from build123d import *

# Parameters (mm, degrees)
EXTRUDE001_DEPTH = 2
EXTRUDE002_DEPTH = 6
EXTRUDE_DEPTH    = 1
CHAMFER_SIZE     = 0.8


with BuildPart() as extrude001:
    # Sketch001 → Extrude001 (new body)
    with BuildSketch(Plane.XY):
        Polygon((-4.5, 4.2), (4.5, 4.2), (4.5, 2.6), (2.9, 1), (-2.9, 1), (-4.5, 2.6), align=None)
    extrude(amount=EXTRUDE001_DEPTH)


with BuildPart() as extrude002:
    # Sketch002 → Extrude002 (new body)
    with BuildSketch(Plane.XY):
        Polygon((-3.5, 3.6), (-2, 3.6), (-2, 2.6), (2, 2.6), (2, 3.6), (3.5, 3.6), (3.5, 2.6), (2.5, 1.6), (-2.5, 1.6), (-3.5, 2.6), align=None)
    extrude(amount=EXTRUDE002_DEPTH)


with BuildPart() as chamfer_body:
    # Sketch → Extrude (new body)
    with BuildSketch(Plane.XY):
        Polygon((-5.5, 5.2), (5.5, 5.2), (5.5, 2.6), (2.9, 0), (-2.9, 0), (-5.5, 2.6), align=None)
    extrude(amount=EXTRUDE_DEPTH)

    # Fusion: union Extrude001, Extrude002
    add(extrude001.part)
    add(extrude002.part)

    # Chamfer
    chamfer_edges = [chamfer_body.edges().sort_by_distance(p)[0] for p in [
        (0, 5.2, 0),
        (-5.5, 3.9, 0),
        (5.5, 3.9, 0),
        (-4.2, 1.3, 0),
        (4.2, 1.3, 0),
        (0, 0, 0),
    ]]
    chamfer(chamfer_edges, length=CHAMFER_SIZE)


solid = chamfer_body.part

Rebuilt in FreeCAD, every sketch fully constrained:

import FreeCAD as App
import Part
import Sketcher

V = App.Vector
Q = App.Units.Quantity


def edges_at(feature, points):
    """Names of the edges that pass closest to the given points."""
    edges = feature.Shape.Edges
    near = lambda p: min(range(len(edges)), key=lambda i: edges[i].distToShape(Part.Vertex(*p))[0])
    return sorted({f"Edge{near(p) + 1}" for p in points})


def add_polygon(sketch, points):
    """Adds a closed chain of lines whose ends are joined by coincident constraints."""
    first, n = sketch.GeometryCount, len(points)
    for a, b in zip(points, points[1:] + points[:1]):
        sketch.addGeometry(Part.LineSegment(App.Vector(*a, 0), App.Vector(*b, 0)), False)
    for i in range(n):
        sketch.addConstraint(Sketcher.Constraint("Coincident", first + i, 2, first + (i + 1) % n, 1))

doc = App.newDocument("Part")
body = doc.addObject("PartDesign::Body", "Body")

sketch1 = body.newObject("Sketcher::SketchObject", "Sketch")
sketch1.AttachmentSupport = (doc.getObject("XY_Plane"), [""])
sketch1.MapMode = "FlatFace"
add_polygon(sketch1, [(4.5, 4.2), (-4.5, 4.2), (-4.5, 2.6), (-2.9, 1), (2.9, 1), (4.5, 2.6)])
sketch1.addConstraint([
    Sketcher.Constraint("Horizontal", 0),
    Sketcher.Constraint("Vertical", 1),
    Sketcher.Constraint("Horizontal", 3),
    Sketcher.Constraint("Vertical", 5),
    Sketcher.Constraint("Symmetric", 1, 2, 4, 2, -2),
    Sketcher.Constraint("Perpendicular", 2, 4),
    Sketcher.Constraint("Equal", 2, 4),
    Sketcher.Constraint("DistanceX", 0, 2, 0, 1, Q("9 mm")),
    Sketcher.Constraint("DistanceX", 3, 1, 3, 2, Q("5.8 mm")),
    Sketcher.Constraint("DistanceY", 1, 2, 1, 1, Q("1.6 mm")),
    Sketcher.Constraint("DistanceY", -1, 1, 2, 2, Q("1 mm")),
])
pad1 = body.newObject("PartDesign::Pad", "Pad")
pad1.Profile = sketch1
pad1.Length = 2
body2 = doc.addObject("PartDesign::Body", "Body001")

sketch2 = body2.newObject("Sketcher::SketchObject", "Sketch001")
sketch2.AttachmentSupport = (doc.getObject("XY_Plane001"), [""])
sketch2.MapMode = "FlatFace"
add_polygon(sketch2, [(-2, 3.6), (-3.5, 3.6), (-3.5, 2.6), (-2.5, 1.6), (2.5, 1.6), (3.5, 2.6), (3.5, 3.6), (2, 3.6), (2, 2.6), (-2, 2.6)])
sketch2.addConstraint([
    Sketcher.Constraint("Horizontal", 0),
    Sketcher.Constraint("Vertical", 1),
    Sketcher.Constraint("Horizontal", 3),
    Sketcher.Constraint("Vertical", 5),
    Sketcher.Constraint("Horizontal", 6),
    Sketcher.Constraint("Vertical", 7),
    Sketcher.Constraint("Horizontal", 8),
    Sketcher.Constraint("Vertical", 9),
    Sketcher.Constraint("Symmetric", 1, 2, 4, 2, -2),
    Sketcher.Constraint("Symmetric", 6, 2, 9, 2, -2),
    Sketcher.Constraint("Perpendicular", 2, 4),
    Sketcher.Constraint("Horizontal", 4, 2, 7, 2),
    Sketcher.Constraint("Equal", 2, 4),
    Sketcher.Constraint("DistanceX", 3, 1, 3, 2, Q("5 mm")),
    Sketcher.Constraint("DistanceX", 8, 2, 8, 1, Q("4 mm")),
    Sketcher.Constraint("DistanceY", 1, 2, 1, 1, Q("1 mm")),
    Sketcher.Constraint("DistanceX", 0, 2, 0, 1, Q("1.5 mm")),
    Sketcher.Constraint("DistanceY", -1, 1, 0, 2, Q("3.6 mm")),
])
pad2 = body2.newObject("PartDesign::Pad", "Pad001")
pad2.Profile = sketch2
pad2.Length = 6
body3 = doc.addObject("PartDesign::Body", "Body002")

sketch3 = body3.newObject("Sketcher::SketchObject", "Sketch002")
sketch3.AttachmentSupport = (doc.getObject("XY_Plane002"), [""])
sketch3.MapMode = "FlatFace"
add_polygon(sketch3, [(5.5, 5.2), (-5.5, 5.2), (-5.5, 2.6), (-2.9, 0), (2.9, 0), (5.5, 2.6)])
sketch3.addConstraint([
    Sketcher.Constraint("Horizontal", 0),
    Sketcher.Constraint("Vertical", 1),
    Sketcher.Constraint("Horizontal", 3),
    Sketcher.Constraint("Vertical", 5),
    Sketcher.Constraint("Symmetric", 2, 2, 3, 2, -1, 1),
    Sketcher.Constraint("Symmetric", 1, 2, 4, 2, -2),
    Sketcher.Constraint("Perpendicular", 2, 4),
    Sketcher.Constraint("DistanceX", 0, 2, 0, 1, Q("11 mm")),
    Sketcher.Constraint("DistanceX", 3, 1, 3, 2, Q("5.8 mm")),
    Sketcher.Constraint("DistanceY", 1, 2, 1, 1, Q("2.6 mm")),
])
pad3 = body3.newObject("PartDesign::Pad", "Pad002")
pad3.Profile = sketch3
pad3.Length = 1
doc.recompute()

boolean = body3.newObject("PartDesign::Boolean", "Boolean")
boolean.Type = "Fuse"
boolean.addObjects([body])
doc.recompute()

boolean2 = body3.newObject("PartDesign::Boolean", "Boolean001")
boolean2.Type = "Fuse"
boolean2.addObjects([body2])
doc.recompute()

chamfer = body3.newObject("PartDesign::Chamfer", "Chamfer")
chamfer.Base = (boolean2, edges_at(boolean2, [
    (0, 5.2, 0),
    (-5.5, 3.9, 0),
    (5.5, 3.9, 0),
    (-4.2, 1.3, 0),
    (4.2, 1.3, 0),
    (0, 0, 0),
]))
chamfer.Size = 0.8

doc.recompute()
